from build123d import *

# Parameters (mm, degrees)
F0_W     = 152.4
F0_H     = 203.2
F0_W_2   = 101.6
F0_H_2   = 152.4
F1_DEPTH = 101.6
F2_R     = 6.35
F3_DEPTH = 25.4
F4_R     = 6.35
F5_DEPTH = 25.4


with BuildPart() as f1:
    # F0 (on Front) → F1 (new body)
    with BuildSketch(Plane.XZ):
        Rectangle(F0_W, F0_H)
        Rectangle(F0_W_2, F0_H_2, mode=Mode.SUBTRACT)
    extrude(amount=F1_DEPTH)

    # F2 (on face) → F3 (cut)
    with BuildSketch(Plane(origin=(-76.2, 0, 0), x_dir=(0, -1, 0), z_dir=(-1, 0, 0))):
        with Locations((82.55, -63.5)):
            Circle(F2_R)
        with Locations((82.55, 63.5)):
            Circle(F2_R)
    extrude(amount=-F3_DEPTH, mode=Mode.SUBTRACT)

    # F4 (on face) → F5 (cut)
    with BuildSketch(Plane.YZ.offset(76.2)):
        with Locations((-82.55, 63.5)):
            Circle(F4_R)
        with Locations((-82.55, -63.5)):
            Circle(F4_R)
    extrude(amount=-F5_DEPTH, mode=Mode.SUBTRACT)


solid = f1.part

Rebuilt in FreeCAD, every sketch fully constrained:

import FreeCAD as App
import Part
import Sketcher

V = App.Vector
Q = App.Units.Quantity


def add_polygon(sketch, points):
    """Adds a closed chain of lines whose ends are joined by coincident constraints."""
    first, n = sketch.GeometryCount, len(points)
    for a, b in zip(points, points[1:] + points[:1]):
        sketch.addGeometry(Part.LineSegment(App.Vector(*a, 0), App.Vector(*b, 0)), False)
    for i in range(n):
        sketch.addConstraint(Sketcher.Constraint("Coincident", first + i, 2, first + (i + 1) % n, 1))

doc = App.newDocument("Part")
params = doc.addObject("Spreadsheet::Sheet", "Params")
for row, (alias, value) in enumerate([
    ("sketch1_width", "6 in"),
    ("sketch1_width2", "4 in"),
    ("sketch1_height", "8 in"),
    ("pad1_length", "4 in"),
    ("sketch2_diameter", "0.5 in"),
    ("pocket1_length", "1 in"),
    ("sketch3_diameter", "0.5 in"),
    ("pocket2_length", "1 in"),
], start=1):
    params.set(f"A{row}", alias)
    params.set(f"B{row}", "=" + value)
    params.setAlias(f"B{row}", alias)

body = doc.addObject("PartDesign::Body", "Body")

# Sketch on XZ plane
sketch1 = doc.addObject("Sketcher::SketchObject", "Sketch")
body.addObject(sketch1)
sketch1.AttachmentSupport = (doc.XZ_Plane, [""])
sketch1.MapMode = "FlatFace"
add_polygon(sketch1, [(-76, 102), (-76, -102), (76, -102), (76, 102)])  # lines 0-3
add_polygon(sketch1, [(51, -76), (-51, -76), (-51, 76), (51, 76)])  # lines 4-7
sketch1.addConstraint([
    Sketcher.Constraint("Vertical", 0),
    Sketcher.Constraint("Horizontal", 1),
    Sketcher.Constraint("Vertical", 2),
    Sketcher.Constraint("Horizontal", 3),
    Sketcher.Constraint("Horizontal", 4),
    Sketcher.Constraint("Vertical", 5),
    Sketcher.Constraint("Horizontal", 6),
    Sketcher.Constraint("Vertical", 7),
    Sketcher.Constraint("Symmetric", 0, 2, 2, 2, -1, 1),
    Sketcher.Constraint("Symmetric", 4, 2, 6, 2, -1, 1),
    Sketcher.Constraint("Equal", 3, 5),
    Sketcher.Constraint("DistanceX", 1, 1, 1, 2, Q("6 in")),
    Sketcher.Constraint("DistanceX", 4, 2, 4, 1, Q("4 in")),
    Sketcher.Constraint("DistanceY", 0, 2, 0, 1, Q("8 in")),
])
sketch1.setExpression("Constraints[19]", "Params.sketch1_width")
sketch1.setExpression("Constraints[20]", "Params.sketch1_width2")
sketch1.setExpression("Constraints[21]", "Params.sketch1_height")
pad1 = doc.addObject("PartDesign::Pad", "Pad")
body.addObject(pad1)
pad1.Profile = sketch1
pad1.setExpression("Length", "Params.pad1_length")

# Sketch on YZ plane
sketch2 = doc.addObject("Sketcher::SketchObject", "Sketch001")
body.addObject(sketch2)
sketch2.AttachmentSupport = (doc.YZ_Plane, [""])
sketch2.MapMode = "FlatFace"
sketch2.AttachmentOffset = App.Placement(V(0, 0, -3 * 25.4), App.Rotation())
sketch2.addGeometry([
    Part.Circle(V(-83, -64, 0), V(0, 0, 1), 6),
    Part.Circle(V(-83, 64, 0), V(0, 0, 1), 6),
], False)
sketch2.addConstraint([
    Sketcher.Constraint("Equal", 0, 1),
    Sketcher.Constraint("Symmetric", 0, 3, 1, 3, -1),
    Sketcher.Constraint("Diameter", 0, Q("0.5 in")),
    Sketcher.Constraint("DistanceY", 0, 3, 1, 3, Q("5 in")),
    Sketcher.Constraint("DistanceX", 0, 3, -1, 1, Q("3.25 in")),
])
sketch2.setExpression("Constraints[2]", "Params.sketch2_diameter")
pocket1 = doc.addObject("PartDesign::Pocket", "Pocket")
body.addObject(pocket1)
pocket1.Profile = sketch2
pocket1.setExpression("Length", "Params.pocket1_length")
pocket1.Reversed = True

# Sketch on YZ plane
sketch3 = doc.addObject("Sketcher::SketchObject", "Sketch002")
body.addObject(sketch3)
sketch3.AttachmentSupport = (doc.YZ_Plane, [""])
sketch3.MapMode = "FlatFace"
sketch3.AttachmentOffset = App.Placement(V(0, 0, 3 * 25.4), App.Rotation())
sketch3.addGeometry([
    Part.Circle(V(-83, 64, 0), V(0, 0, 1), 6),
    Part.Circle(V(-83, -64, 0), V(0, 0, 1), 6),
], False)
sketch3.addConstraint([
    Sketcher.Constraint("Equal", 0, 1),
    Sketcher.Constraint("Symmetric", 0, 3, 1, 3, -1),
    Sketcher.Constraint("Diameter", 0, Q("0.5 in")),
    Sketcher.Constraint("DistanceY", 1, 3, 0, 3, Q("5 in")),
    Sketcher.Constraint("DistanceX", 0, 3, -1, 1, Q("3.25 in")),
])
sketch3.setExpression("Constraints[2]", "Params.sketch3_diameter")
pocket2 = doc.addObject("PartDesign::Pocket", "Pocket001")
body.addObject(pocket2)
pocket2.Profile = sketch3
pocket2.setExpression("Length", "Params.pocket2_length")

doc.recompute()
